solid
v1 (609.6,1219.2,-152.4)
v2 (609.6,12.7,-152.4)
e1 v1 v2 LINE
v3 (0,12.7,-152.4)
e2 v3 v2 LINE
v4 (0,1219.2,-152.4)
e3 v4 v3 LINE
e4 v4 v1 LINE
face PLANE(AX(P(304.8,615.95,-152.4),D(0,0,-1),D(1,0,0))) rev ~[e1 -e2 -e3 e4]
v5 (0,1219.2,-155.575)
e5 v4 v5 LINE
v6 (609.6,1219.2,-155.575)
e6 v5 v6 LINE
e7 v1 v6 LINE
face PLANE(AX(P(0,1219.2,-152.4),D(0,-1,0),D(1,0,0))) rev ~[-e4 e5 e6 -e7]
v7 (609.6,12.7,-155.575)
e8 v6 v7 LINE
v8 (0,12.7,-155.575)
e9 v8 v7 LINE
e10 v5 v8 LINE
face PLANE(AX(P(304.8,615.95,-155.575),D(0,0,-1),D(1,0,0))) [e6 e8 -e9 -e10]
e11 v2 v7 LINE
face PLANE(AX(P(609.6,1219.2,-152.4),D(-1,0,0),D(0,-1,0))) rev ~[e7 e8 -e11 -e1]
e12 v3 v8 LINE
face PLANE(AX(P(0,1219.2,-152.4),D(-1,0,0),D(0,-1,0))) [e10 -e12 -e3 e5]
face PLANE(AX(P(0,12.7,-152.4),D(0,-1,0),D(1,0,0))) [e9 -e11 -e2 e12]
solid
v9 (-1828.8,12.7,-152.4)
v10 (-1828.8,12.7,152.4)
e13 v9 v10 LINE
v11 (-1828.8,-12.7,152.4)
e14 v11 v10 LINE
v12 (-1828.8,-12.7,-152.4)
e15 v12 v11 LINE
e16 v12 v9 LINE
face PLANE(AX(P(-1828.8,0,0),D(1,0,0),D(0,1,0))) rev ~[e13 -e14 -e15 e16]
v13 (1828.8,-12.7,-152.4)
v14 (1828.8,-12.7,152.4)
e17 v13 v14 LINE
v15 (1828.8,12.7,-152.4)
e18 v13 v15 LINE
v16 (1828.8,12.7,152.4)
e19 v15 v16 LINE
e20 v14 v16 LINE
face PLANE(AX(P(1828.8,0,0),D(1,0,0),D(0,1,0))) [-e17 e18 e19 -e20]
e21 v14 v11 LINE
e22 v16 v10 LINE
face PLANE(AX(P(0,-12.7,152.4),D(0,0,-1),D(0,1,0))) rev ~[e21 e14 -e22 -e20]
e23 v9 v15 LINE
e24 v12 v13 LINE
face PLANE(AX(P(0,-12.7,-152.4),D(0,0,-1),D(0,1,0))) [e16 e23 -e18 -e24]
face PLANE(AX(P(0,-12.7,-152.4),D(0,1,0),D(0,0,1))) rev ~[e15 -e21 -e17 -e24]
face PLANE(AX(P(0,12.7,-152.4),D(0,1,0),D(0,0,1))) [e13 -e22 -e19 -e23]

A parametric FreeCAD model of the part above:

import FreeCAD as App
import Part
import Sketcher
Q = App.Units.Quantity


def add_polygon(sketch, points):
    """Adds a closed chain of lines whose ends are joined by coincident constraints."""
    first, n = sketch.GeometryCount, len(points)
    for a, b in zip(points, points[1:] + points[:1]):
        sketch.addGeometry(Part.LineSegment(App.Vector(*a, 0), App.Vector(*b, 0)), False)
    for i in range(n):
        sketch.addConstraint(Sketcher.Constraint("Coincident", first + i, 2, first + (i + 1) % n, 1))

doc = App.newDocument("Part")
params = doc.addObject("Spreadsheet::Sheet", "Params")
for row, (alias, value) in enumerate([
    ("sketch1_width", "1 in"),
    ("sketch1_height", "12 in"),
    ("pad1_length", "144 in"),
    ("sketch2_width", "24 in"),
    ("sketch2_height", "47.5 in"),
    ("pad2_length", "0.125 in"),
], start=1):
    params.set(f"A{row}", alias)
    params.set(f"B{row}", "=" + value)
    params.setAlias(f"B{row}", alias)

body = doc.addObject("PartDesign::Body", "Body")

sketch1 = body.newObject("Sketcher::SketchObject", "Sketch")
sketch1.AttachmentSupport = (doc.getObject("YZ_Plane"), [""])
sketch1.MapMode = "FlatFace"
add_polygon(sketch1, [(-13, 152), (-13, -152), (13, -152), (13, 152)])
sketch1.addConstraint([
    Sketcher.Constraint("Vertical", 0),
    Sketcher.Constraint("Horizontal", 1),
    Sketcher.Constraint("Vertical", 2),
    Sketcher.Constraint("Horizontal", 3),
    Sketcher.Constraint("Symmetric", 0, 2, 2, 2, -1, 1),
    Sketcher.Constraint("DistanceX", 1, 1, 1, 2, Q("1 in")),
    Sketcher.Constraint("DistanceY", 0, 2, 0, 1, Q("12 in")),
])
sketch1.setExpression("Constraints[9]", "Params.sketch1_width")
sketch1.setExpression("Constraints[10]", "Params.sketch1_height")
pad1 = body.newObject("PartDesign::Pad", "Pad")
pad1.Profile = sketch1
pad1.setExpression("Length", "Params.pad1_length")
pad1.Midplane = True
body2 = doc.addObject("PartDesign::Body", "Body001")

sketch2 = body2.newObject("Sketcher::SketchObject", "Sketch001")
sketch2.AttachmentSupport = (doc.getObject("XY_Plane001"), [""])
sketch2.MapMode = "FlatFace"
sketch2.AttachmentOffset = App.Placement(App.Vector(0, 0, -6 * 25.4), App.Rotation())
add_polygon(sketch2, [(0, 13), (0, 1219), (610, 1219), (610, 13)])
sketch2.addConstraint([
    Sketcher.Constraint("Vertical", 0),
    Sketcher.Constraint("Horizontal", 1),
    Sketcher.Constraint("Vertical", 2),
    Sketcher.Constraint("Horizontal", 3),
    Sketcher.Constraint("PointOnObject", 0, 2, -2),
    Sketcher.Constraint("DistanceX", 1, 1, 1, 2, Q("24 in")),
    Sketcher.Constraint("DistanceY", 0, 1, 0, 2, Q("47.5 in")),
    Sketcher.Constraint("DistanceY", -1, 1, 0, 2, Q("48 in")),
])
sketch2.setExpression("Constraints[9]", "Params.sketch2_width")
sketch2.setExpression("Constraints[10]", "Params.sketch2_height")
pad2 = body2.newObject("PartDesign::Pad", "Pad001")
pad2.Profile = sketch2
pad2.setExpression("Length", "Params.pad2_length")
pad2.Reversed = True

doc.recompute()
